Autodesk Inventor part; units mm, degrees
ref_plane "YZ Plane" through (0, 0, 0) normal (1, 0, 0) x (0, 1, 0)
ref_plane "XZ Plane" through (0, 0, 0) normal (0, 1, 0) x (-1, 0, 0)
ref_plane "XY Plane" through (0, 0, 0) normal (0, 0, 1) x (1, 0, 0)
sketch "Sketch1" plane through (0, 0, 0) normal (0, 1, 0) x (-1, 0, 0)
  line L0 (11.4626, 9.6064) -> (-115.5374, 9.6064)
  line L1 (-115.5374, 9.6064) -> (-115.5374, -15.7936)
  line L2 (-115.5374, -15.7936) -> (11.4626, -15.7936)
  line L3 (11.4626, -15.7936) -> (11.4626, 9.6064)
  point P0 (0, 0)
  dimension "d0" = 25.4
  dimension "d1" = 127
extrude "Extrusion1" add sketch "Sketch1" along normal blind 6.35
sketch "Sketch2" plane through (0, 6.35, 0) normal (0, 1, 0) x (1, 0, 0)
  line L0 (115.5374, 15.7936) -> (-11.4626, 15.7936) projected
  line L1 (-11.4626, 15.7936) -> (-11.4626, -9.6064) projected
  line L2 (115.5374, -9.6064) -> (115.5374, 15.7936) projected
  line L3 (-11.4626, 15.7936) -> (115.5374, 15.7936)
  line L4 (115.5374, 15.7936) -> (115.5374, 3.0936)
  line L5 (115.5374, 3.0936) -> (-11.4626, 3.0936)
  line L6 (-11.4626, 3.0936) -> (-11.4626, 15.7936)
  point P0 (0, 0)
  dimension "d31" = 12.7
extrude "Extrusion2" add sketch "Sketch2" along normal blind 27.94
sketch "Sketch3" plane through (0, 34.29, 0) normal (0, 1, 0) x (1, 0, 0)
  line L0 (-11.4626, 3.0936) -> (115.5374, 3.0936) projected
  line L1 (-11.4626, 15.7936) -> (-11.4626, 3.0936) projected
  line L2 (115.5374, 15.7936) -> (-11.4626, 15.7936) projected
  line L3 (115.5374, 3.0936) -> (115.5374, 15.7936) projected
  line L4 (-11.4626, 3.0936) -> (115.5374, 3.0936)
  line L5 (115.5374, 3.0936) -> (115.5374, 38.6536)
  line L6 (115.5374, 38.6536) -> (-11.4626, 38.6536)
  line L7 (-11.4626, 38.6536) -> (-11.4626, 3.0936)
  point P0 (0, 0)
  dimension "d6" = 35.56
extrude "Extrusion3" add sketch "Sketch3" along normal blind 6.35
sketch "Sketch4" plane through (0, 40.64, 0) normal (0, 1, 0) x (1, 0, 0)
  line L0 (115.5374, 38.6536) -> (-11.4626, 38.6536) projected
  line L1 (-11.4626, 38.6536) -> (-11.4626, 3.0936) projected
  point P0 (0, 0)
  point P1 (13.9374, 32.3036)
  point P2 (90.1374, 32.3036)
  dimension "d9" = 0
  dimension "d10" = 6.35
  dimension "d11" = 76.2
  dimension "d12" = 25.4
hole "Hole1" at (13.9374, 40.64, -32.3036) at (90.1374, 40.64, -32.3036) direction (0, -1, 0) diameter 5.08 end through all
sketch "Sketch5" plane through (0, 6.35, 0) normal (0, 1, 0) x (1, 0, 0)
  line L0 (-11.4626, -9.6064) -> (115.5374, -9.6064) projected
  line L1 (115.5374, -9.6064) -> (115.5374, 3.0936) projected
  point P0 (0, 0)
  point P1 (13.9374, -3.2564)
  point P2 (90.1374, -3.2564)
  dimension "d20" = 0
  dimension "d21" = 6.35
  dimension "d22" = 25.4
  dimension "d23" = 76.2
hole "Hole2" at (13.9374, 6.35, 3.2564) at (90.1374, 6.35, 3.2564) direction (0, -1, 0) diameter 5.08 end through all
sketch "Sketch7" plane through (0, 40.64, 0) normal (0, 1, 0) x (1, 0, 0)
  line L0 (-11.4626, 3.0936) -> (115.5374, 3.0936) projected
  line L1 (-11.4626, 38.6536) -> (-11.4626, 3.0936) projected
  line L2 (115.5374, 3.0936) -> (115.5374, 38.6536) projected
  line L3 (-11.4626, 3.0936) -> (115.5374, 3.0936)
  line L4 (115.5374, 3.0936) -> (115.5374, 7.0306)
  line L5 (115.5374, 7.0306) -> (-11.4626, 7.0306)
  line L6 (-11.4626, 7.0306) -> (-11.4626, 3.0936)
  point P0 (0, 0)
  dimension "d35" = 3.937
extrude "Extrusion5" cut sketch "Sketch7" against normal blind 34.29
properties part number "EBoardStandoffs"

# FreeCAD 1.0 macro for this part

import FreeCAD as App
import Part
import Sketcher
from FreeCAD import Vector
Q = App.Units.Quantity


def add_polygon(sketch, points):
    """Adds a closed chain of lines whose ends are joined by coincident constraints."""
    first, n = sketch.GeometryCount, len(points)
    for a, b in zip(points, points[1:] + points[:1]):
        sketch.addGeometry(Part.LineSegment(App.Vector(*a, 0), App.Vector(*b, 0)), False)
    for i in range(n):
        sketch.addConstraint(Sketcher.Constraint("Coincident", first + i, 2, first + (i + 1) % n, 1))

doc = App.newDocument("Part")
body = doc.addObject("PartDesign::Body", "Body")

sketch1 = doc.addObject("Sketcher::SketchObject", "Sketch")
body.addObject(sketch1)
sketch1.AttachmentSupport = (doc.XZ_Plane, [""])
sketch1.MapMode = "FlatFace"
add_polygon(sketch1, [(-11.4626, -15.7936), (-11.4626, 9.6064), (115.5374, 9.6064), (115.5374, -15.7936)])
sketch1.addConstraint(Sketcher.Constraint("Vertical", 0))
sketch1.addConstraint(Sketcher.Constraint("Horizontal", 1))
sketch1.addConstraint(Sketcher.Constraint("Vertical", 2))
sketch1.addConstraint(Sketcher.Constraint("Horizontal", 3))
sketch1.addConstraint(Sketcher.Constraint("DistanceX", 1, 1, 1, 2, Q("5 in")))
sketch1.addConstraint(Sketcher.Constraint("DistanceY", 0, 1, 0, 2, Q("1 in")))
sketch1.addConstraint(Sketcher.Constraint("DistanceY", -1, 1, 0, 2, Q("0.3782 in")))
sketch1.addConstraint(Sketcher.Constraint("DistanceX", 0, 2, -1, 1, Q("11.4626 mm")))
pad1 = doc.addObject("PartDesign::Pad", "Pad")
body.addObject(pad1)
pad1.Profile = sketch1
pad1.Length = Q("0.25 in")
pad1.Reversed = True

sketch2 = doc.addObject("Sketcher::SketchObject", "Sketch001")
body.addObject(sketch2)
sketch2.AttachmentSupport = (doc.XZ_Plane, [""])
sketch2.MapMode = "FlatFace"
sketch2.AttachmentOffset = App.Placement(Vector(0, 0, -0.25 * 25.4), App.Rotation())
add_polygon(sketch2, [(115.5374, -3.0936), (115.5374, -15.7936), (-11.4626, -15.7936), (-11.4626, -3.0936)])
sketch2.addConstraint(Sketcher.Constraint("Vertical", 0))
sketch2.addConstraint(Sketcher.Constraint("Horizontal", 1))
sketch2.addConstraint(Sketcher.Constraint("Vertical", 2))
sketch2.addConstraint(Sketcher.Constraint("Horizontal", 3))
sketch2.addConstraint(Sketcher.Constraint("DistanceY", 0, 2, 0, 1, Q("0.5 in")))
sketch2.addConstraint(Sketcher.Constraint("DistanceX", 1, 2, 1, 1, Q("5 in")))
sketch2.addConstraint(Sketcher.Constraint("DistanceY", 0, 2, -1, 1, Q("0.6218 in")))
sketch2.addConstraint(Sketcher.Constraint("DistanceX", -1, 1, 0, 2, Q("115.5374 mm")))
pad2 = doc.addObject("PartDesign::Pad", "Pad001")
body.addObject(pad2)
pad2.Profile = sketch2
pad2.Length = Q("1.1 in")
pad2.Reversed = True

sketch3 = doc.addObject("Sketcher::SketchObject", "Sketch002")
body.addObject(sketch3)
sketch3.AttachmentSupport = (doc.XZ_Plane, [""])
sketch3.MapMode = "FlatFace"
sketch3.AttachmentOffset = App.Placement(Vector(0, 0, -1.35 * 25.4), App.Rotation())
add_polygon(sketch3, [(-11.4626, -3.0936), (115.5374, -3.0936), (115.5374, -38.6536), (-11.4626, -38.6536)])
sketch3.addConstraint(Sketcher.Constraint("Horizontal", 0))
sketch3.addConstraint(Sketcher.Constraint("Vertical", 1))
sketch3.addConstraint(Sketcher.Constraint("Horizontal", 2))
sketch3.addConstraint(Sketcher.Constraint("Vertical", 3))
sketch3.addConstraint(Sketcher.Constraint("DistanceY", 1, 2, 1, 1, Q("1.4 in")))
sketch3.addConstraint(Sketcher.Constraint("DistanceX", 0, 1, 0, 2, Q("5 in")))
sketch3.addConstraint(Sketcher.Constraint("DistanceY", 0, 2, -1, 1, Q("0.1218 in")))
sketch3.addConstraint(Sketcher.Constraint("DistanceX", -1, 1, 0, 2, Q("115.5374 mm")))
pad3 = doc.addObject("PartDesign::Pad", "Pad002")
body.addObject(pad3)
pad3.Profile = sketch3
pad3.Length = Q("0.25 in")
pad3.Reversed = True

sketch4 = doc.addObject("Sketcher::SketchObject", "Sketch003")
body.addObject(sketch4)
sketch4.AttachmentSupport = (doc.XZ_Plane, [""])
sketch4.MapMode = "FlatFace"
sketch4.AttachmentOffset = App.Placement(Vector(0, 0, -1.6 * 25.4), App.Rotation())
sketch4.addGeometry(Part.Circle(Vector(13.9374, -32.3036, 0), Vector(0, 0, 1), 2.54), False)
sketch4.addGeometry(Part.Circle(Vector(90.1374, -32.3036, 0), Vector(0, 0, 1), 2.54), False)
sketch4.addConstraint(Sketcher.Constraint("Equal", 0, 1))
sketch4.addConstraint(Sketcher.Constraint("Horizontal", 0, 3, 1, 3))
sketch4.addConstraint(Sketcher.Constraint("Diameter", 0, Q("0.2 in")))
sketch4.addConstraint(Sketcher.Constraint("DistanceX", 0, 3, 1, 3, Q("3 in")))
sketch4.addConstraint(Sketcher.Constraint("DistanceY", 0, 3, -1, 1, Q("1.2718 in")))
sketch4.addConstraint(Sketcher.Constraint("DistanceX", -1, 1, 0, 3, Q("13.9374 mm")))
doc.recompute()
hole = doc.addObject("PartDesign::Hole", "Hole")
body.addObject(hole)
hole.Profile = sketch4
hole.ThreadType = "None"
hole.Diameter = Q("0.2 in")
hole.DepthType = "ThroughAll"
hole.Reversed = True

sketch5 = doc.addObject("Sketcher::SketchObject", "Sketch004")
body.addObject(sketch5)
sketch5.AttachmentSupport = (doc.XZ_Plane, [""])
sketch5.MapMode = "FlatFace"
sketch5.AttachmentOffset = App.Placement(Vector(0, 0, -0.25 * 25.4), App.Rotation())
sketch5.addGeometry(Part.Circle(Vector(13.9374, 3.2564, 0), Vector(0, 0, 1), 2.54), False)
sketch5.addGeometry(Part.Circle(Vector(90.1374, 3.2564, 0), Vector(0, 0, 1), 2.54), False)
sketch5.addConstraint(Sketcher.Constraint("Equal", 0, 1))
sketch5.addConstraint(Sketcher.Constraint("Horizontal", 0, 3, 1, 3))
sketch5.addConstraint(Sketcher.Constraint("Diameter", 0, Q("0.2 in")))
sketch5.addConstraint(Sketcher.Constraint("DistanceX", 0, 3, 1, 3, Q("3 in")))
sketch5.addConstraint(Sketcher.Constraint("DistanceY", -1, 1, 0, 3, Q("0.1282 in")))
sketch5.addConstraint(Sketcher.Constraint("DistanceX", -1, 1, 0, 3, Q("13.9374 mm")))
doc.recompute()
hole2 = doc.addObject("PartDesign::Hole", "Hole001")
body.addObject(hole2)
hole2.Profile = sketch5
hole2.ThreadType = "None"
hole2.Diameter = Q("0.2 in")
hole2.DepthType = "ThroughAll"
hole2.Reversed = True

sketch6 = doc.addObject("Sketcher::SketchObject", "Sketch005")
body.addObject(sketch6)
sketch6.AttachmentSupport = (doc.XZ_Plane, [""])
sketch6.MapMode = "FlatFace"
sketch6.AttachmentOffset = App.Placement(Vector(0, 0, -1.6 * 25.4), App.Rotation())
add_polygon(sketch6, [(-11.4626, -7.0306), (-11.4626, -3.0936), (115.5374, -3.0936), (115.5374, -7.0306)])
sketch6.addConstraint(Sketcher.Constraint("Vertical", 0))
sketch6.addConstraint(Sketcher.Constraint("Horizontal", 1))
sketch6.addConstraint(Sketcher.Constraint("Vertical", 2))
sketch6.addConstraint(Sketcher.Constraint("Horizontal", 3))
sketch6.addConstraint(Sketcher.Constraint("DistanceX", 1, 1, 1, 2, Q("5 in")))
sketch6.addConstraint(Sketcher.Constraint("DistanceY", 0, 1, 0, 2, Q("0.155 in")))
sketch6.addConstraint(Sketcher.Constraint("DistanceY", 0, 2, -1, 1, Q("0.1218 in")))
sketch6.addConstraint(Sketcher.Constraint("DistanceX", 0, 2, -1, 1, Q("11.4626 mm")))
pocket1 = doc.addObject("PartDesign::Pocket", "Pocket")
body.addObject(pocket1)
pocket1.Profile = sketch6
pocket1.Length = Q("1.35 in")
pocket1.Reversed = True

doc.recompute()
